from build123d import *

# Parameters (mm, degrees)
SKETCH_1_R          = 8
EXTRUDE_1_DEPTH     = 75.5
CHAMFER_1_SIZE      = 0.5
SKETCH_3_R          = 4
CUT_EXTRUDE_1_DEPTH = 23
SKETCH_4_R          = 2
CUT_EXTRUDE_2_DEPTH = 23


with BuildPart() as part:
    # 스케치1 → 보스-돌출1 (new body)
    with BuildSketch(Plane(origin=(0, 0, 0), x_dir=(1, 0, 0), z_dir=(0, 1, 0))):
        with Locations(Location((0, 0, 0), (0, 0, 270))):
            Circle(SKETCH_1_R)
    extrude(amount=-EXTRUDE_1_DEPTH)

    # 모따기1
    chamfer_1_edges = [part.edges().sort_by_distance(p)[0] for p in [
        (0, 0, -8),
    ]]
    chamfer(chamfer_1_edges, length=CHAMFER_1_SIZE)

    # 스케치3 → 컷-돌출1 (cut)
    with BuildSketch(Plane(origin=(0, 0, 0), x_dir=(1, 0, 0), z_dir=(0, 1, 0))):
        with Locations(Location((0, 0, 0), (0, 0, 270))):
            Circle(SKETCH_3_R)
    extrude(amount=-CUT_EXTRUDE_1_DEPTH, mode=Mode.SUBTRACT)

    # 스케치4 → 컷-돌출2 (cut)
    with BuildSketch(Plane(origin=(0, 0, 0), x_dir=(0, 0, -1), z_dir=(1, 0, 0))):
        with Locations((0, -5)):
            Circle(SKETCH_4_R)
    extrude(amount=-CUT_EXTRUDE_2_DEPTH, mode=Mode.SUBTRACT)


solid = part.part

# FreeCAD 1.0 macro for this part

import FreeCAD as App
import Part
import Sketcher

V = App.Vector


def edges_at(feature, points):
    """Names of the edges that pass closest to the given points."""
    edges = feature.Shape.Edges
    near = lambda p: min(range(len(edges)), key=lambda i: edges[i].distToShape(Part.Vertex(*p))[0])
    return sorted({f"Edge{near(p) + 1}" for p in points})

doc = App.newDocument("Part")
body = doc.addObject("PartDesign::Body", "Body")

sketch1 = body.newObject("Sketcher::SketchObject", "Sketch")
sketch1.AttachmentSupport = (doc.getObject("XZ_Plane"), [""])
sketch1.MapMode = "FlatFace"
sketch1.addGeometry(Part.Circle(V(0, 0, 0), V(0, 0, 1), 8), False)
sketch1.addConstraint(Sketcher.Constraint("Coincident", 0, 3, -1, 1))
sketch1.addConstraint(Sketcher.Constraint("Diameter", 0, 16.0))
pad1 = body.newObject("PartDesign::Pad", "Pad")
pad1.Profile = sketch1
pad1.Length = 75.5
doc.recompute()

chamfer = body.newObject("PartDesign::Chamfer", "Chamfer")
chamfer.Base = (pad1, edges_at(pad1, [(0, 0, -8)]))
chamfer.Size = 0.5

sketch2 = body.newObject("Sketcher::SketchObject", "Sketch001")
sketch2.AttachmentSupport = (doc.getObject("XZ_Plane"), [""])
sketch2.MapMode = "FlatFace"
sketch2.addGeometry(Part.Circle(V(0, 0, 0), V(0, 0, 1), 4), False)
sketch2.addConstraint(Sketcher.Constraint("Coincident", 0, 3, -1, 1))
sketch2.addConstraint(Sketcher.Constraint("Diameter", 0, 8.0))
pocket1 = body.newObject("PartDesign::Pocket", "Pocket")
pocket1.Profile = sketch2
pocket1.Length = 23
pocket1.Reversed = True

sketch3 = body.newObject("Sketcher::SketchObject", "Sketch002")
sketch3.AttachmentSupport = (doc.getObject("YZ_Plane"), [""])
sketch3.MapMode = "FlatFace"
sketch3.addGeometry(Part.Circle(V(-5, 0, 0), V(0, 0, 1), 2), False)
sketch3.addConstraint(Sketcher.Constraint("PointOnObject", 0, 3, -1))
sketch3.addConstraint(Sketcher.Constraint("Diameter", 0, 4.0))
sketch3.addConstraint(Sketcher.Constraint("DistanceX", 0, 3, -1, 1, 5.0))
pocket2 = body.newObject("PartDesign::Pocket", "Pocket001")
pocket2.Profile = sketch3
pocket2.Length = 23

doc.recompute()
